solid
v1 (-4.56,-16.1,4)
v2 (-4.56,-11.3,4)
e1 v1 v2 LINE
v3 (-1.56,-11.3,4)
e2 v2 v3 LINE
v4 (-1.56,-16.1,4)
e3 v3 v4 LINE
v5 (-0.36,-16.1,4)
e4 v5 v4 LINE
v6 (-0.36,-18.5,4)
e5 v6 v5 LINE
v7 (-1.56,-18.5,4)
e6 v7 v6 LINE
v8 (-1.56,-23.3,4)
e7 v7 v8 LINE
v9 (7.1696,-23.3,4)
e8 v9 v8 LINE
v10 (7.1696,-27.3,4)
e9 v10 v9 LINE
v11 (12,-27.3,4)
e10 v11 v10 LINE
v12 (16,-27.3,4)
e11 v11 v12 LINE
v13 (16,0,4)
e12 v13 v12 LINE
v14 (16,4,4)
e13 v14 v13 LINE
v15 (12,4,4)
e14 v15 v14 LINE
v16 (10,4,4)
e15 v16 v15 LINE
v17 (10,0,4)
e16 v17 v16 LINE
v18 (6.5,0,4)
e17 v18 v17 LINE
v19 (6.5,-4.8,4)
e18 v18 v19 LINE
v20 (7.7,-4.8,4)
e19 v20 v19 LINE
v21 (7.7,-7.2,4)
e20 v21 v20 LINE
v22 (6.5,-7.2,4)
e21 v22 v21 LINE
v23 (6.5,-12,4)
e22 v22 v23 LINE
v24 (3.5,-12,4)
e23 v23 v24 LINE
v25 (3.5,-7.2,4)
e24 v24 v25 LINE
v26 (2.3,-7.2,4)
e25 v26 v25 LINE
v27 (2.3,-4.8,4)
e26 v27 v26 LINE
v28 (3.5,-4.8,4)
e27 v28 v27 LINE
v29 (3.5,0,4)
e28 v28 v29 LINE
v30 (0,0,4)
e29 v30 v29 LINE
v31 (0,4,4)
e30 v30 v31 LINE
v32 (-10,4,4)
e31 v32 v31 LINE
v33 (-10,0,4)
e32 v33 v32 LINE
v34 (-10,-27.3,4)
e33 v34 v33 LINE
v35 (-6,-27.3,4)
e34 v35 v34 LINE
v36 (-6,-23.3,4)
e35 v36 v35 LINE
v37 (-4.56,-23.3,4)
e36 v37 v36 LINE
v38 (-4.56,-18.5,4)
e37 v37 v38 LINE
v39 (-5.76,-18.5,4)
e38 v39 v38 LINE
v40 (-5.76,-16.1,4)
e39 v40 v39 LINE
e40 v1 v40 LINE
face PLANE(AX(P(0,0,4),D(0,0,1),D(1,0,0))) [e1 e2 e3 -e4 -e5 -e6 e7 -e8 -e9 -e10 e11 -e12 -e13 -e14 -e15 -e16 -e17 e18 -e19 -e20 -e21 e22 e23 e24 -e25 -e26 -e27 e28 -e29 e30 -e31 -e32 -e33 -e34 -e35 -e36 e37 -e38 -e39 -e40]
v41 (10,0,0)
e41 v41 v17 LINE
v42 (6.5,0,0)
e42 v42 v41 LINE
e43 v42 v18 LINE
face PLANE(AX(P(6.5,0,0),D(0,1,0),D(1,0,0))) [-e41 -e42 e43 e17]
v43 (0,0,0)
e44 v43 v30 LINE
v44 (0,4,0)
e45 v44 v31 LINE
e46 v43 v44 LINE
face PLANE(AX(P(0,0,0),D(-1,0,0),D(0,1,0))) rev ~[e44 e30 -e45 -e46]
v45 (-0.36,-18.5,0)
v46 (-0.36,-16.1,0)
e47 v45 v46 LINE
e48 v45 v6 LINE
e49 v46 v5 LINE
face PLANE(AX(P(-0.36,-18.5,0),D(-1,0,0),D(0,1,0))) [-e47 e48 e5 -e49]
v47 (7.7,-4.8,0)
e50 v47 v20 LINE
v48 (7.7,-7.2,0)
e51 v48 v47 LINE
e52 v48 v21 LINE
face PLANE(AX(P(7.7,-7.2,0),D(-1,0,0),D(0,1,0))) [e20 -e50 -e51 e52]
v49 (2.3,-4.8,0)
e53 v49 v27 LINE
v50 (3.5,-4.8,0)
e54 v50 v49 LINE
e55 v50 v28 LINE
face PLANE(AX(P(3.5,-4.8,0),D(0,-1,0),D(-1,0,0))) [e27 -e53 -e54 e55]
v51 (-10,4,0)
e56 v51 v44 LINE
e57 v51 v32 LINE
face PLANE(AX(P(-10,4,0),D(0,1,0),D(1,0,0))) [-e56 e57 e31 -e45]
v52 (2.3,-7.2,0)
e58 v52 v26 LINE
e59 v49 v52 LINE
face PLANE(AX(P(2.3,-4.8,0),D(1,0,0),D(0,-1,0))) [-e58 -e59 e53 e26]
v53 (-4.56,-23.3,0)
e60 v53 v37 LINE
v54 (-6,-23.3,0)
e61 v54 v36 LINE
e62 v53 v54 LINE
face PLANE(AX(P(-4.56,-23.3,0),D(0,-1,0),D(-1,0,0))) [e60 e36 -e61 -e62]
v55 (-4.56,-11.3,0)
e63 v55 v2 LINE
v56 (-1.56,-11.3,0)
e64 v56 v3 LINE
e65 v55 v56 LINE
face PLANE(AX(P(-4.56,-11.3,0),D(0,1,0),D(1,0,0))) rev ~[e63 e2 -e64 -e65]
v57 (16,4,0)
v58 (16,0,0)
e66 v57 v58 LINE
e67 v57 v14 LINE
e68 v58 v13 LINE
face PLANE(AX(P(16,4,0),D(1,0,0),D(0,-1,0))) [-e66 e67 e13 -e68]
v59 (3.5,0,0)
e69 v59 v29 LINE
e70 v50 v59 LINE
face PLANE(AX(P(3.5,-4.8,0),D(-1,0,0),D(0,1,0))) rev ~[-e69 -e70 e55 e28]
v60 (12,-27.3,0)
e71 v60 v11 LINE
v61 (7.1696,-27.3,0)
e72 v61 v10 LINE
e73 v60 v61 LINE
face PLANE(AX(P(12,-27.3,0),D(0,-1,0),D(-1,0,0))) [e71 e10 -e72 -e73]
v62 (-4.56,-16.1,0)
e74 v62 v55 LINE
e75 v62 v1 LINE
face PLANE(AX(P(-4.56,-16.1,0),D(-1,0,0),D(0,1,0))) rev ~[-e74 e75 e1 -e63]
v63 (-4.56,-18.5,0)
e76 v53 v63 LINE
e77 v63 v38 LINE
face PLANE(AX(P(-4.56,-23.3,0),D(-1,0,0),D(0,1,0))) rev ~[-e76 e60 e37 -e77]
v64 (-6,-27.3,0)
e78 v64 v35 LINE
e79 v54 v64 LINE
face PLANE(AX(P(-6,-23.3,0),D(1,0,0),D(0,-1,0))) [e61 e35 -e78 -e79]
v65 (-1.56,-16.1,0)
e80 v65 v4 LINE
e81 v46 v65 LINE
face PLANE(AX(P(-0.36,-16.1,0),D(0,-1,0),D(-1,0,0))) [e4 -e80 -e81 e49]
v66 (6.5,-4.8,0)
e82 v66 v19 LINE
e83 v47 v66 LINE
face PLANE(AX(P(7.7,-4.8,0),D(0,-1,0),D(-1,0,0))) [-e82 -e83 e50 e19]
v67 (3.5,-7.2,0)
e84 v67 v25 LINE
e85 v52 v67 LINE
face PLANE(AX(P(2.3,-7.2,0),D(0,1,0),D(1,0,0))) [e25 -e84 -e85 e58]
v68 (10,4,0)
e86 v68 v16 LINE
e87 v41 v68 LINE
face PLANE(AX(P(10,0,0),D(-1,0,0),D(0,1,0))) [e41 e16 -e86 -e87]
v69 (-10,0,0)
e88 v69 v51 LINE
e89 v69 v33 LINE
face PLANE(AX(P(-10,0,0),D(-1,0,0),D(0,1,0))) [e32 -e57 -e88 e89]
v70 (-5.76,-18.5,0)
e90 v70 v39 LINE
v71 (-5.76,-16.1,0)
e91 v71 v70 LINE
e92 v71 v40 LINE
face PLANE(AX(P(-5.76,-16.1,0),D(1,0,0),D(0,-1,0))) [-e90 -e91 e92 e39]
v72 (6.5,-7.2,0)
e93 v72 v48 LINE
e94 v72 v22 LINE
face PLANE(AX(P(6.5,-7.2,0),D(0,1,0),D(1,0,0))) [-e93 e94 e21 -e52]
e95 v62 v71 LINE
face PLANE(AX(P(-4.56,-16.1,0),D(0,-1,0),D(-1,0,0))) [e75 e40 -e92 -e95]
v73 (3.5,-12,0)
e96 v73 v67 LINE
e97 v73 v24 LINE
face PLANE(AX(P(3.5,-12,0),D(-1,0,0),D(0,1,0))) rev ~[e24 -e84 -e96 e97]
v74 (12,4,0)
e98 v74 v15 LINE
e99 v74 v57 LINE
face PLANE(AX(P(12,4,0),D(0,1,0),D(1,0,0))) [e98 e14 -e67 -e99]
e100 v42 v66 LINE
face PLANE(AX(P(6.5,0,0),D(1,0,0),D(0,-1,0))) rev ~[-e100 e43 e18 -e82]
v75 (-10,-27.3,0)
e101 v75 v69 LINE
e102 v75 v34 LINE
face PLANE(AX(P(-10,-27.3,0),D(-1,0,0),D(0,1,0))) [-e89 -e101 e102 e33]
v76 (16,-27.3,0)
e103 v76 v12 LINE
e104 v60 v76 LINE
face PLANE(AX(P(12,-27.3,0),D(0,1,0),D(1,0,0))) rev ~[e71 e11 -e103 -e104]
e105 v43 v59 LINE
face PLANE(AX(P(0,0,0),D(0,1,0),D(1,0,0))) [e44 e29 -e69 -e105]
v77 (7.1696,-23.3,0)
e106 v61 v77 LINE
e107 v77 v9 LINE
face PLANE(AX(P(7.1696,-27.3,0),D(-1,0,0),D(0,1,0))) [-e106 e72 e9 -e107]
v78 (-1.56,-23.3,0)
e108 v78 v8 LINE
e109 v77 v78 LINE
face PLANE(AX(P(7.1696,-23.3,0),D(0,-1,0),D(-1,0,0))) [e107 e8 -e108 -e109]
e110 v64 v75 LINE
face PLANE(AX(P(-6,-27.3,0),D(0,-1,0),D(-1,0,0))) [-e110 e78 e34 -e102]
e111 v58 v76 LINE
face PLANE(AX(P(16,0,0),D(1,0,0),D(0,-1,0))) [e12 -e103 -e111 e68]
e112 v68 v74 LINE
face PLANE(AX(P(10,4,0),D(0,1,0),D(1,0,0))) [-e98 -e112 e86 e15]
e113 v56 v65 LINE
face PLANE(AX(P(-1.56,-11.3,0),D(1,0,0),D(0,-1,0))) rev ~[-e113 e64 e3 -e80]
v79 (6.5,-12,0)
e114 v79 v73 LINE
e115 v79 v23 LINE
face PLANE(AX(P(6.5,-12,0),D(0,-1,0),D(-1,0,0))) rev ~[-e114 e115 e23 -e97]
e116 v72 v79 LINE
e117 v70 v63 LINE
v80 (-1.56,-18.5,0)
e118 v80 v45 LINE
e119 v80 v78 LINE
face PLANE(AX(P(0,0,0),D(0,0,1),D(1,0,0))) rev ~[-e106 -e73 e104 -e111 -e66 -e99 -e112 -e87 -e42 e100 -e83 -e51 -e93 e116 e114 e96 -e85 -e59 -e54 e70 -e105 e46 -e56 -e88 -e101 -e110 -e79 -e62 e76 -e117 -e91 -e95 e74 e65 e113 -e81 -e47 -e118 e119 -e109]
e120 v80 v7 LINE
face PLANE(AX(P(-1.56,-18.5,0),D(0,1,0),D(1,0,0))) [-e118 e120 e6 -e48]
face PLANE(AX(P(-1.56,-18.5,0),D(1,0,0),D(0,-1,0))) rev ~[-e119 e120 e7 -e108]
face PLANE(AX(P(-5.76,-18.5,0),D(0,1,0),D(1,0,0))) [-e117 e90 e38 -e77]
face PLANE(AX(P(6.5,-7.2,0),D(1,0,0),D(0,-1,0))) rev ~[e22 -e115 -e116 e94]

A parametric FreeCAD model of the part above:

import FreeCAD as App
import Part
import Sketcher

V = App.Vector

doc = App.newDocument("Part")
body = doc.addObject("PartDesign::Body", "Body")

sketch1 = body.newObject("Sketcher::SketchObject", "Sketch")
sketch1.AttachmentSupport = (doc.getObject("XY_Plane"), [""])
sketch1.MapMode = "FlatFace"
sketch1.addGeometry(Part.LineSegment(V(0, 4, 0), V(-10, 4, 0)), False)
sketch1.addGeometry(Part.LineSegment(V(-10, 4, 0), V(-10, -27.3, 0)), False)
sketch1.addGeometry(Part.LineSegment(V(-10, -27.3, 0), V(-6, -27.3, 0)), False)
sketch1.addGeometry(Part.LineSegment(V(-6, -27.3, 0), V(-6, -23.3, 0)), False)
sketch1.addGeometry(Part.LineSegment(V(-6, -23.3, 0), V(-4.6, -23.3, 0)), False)
sketch1.addGeometry(Part.LineSegment(V(-4.6, -23.3, 0), V(-4.6, -18.5, 0)), False)
sketch1.addGeometry(Part.LineSegment(V(-4.6, -18.5, 0), V(-5.8, -18.5, 0)), False)
sketch1.addGeometry(Part.LineSegment(V(-5.8, -18.5, 0), V(-5.8, -16.1, 0)), False)
sketch1.addGeometry(Part.LineSegment(V(-5.8, -16.1, 0), V(-4.6, -16.1, 0)), False)
sketch1.addGeometry(Part.LineSegment(V(-4.6, -16.1, 0), V(-4.6, -11.3, 0)), False)
sketch1.addGeometry(Part.LineSegment(V(-4.6, -11.3, 0), V(-1.6, -11.3, 0)), False)
sketch1.addGeometry(Part.LineSegment(V(-1.6, -11.3, 0), V(-1.6, -16.1, 0)), False)
sketch1.addGeometry(Part.LineSegment(V(-1.6, -16.1, 0), V(-0.4, -16.1, 0)), False)
sketch1.addGeometry(Part.LineSegment(V(-0.4, -16.1, 0), V(-0.4, -18.5, 0)), False)
sketch1.addGeometry(Part.LineSegment(V(-0.4, -18.5, 0), V(-1.6, -18.5, 0)), False)
sketch1.addGeometry(Part.LineSegment(V(-1.6, -18.5, 0), V(-1.6, -23.3, 0)), False)
sketch1.addGeometry(Part.LineSegment(V(-1.6, -23.3, 0), V(7.2, -23.3, 0)), False)
sketch1.addGeometry(Part.LineSegment(V(7.2, -23.3, 0), V(7.2, -27.3, 0)), False)
sketch1.addGeometry(Part.LineSegment(V(7.2, -27.3, 0), V(16, -27.3, 0)), False)
sketch1.addGeometry(Part.LineSegment(V(16, -27.3, 0), V(16, 4, 0)), False)
sketch1.addGeometry(Part.LineSegment(V(16, 4, 0), V(10, 4, 0)), False)
sketch1.addGeometry(Part.LineSegment(V(10, 4, 0), V(10, 0, 0)), False)
sketch1.addGeometry(Part.LineSegment(V(10, 0, 0), V(6.5, 0, 0)), False)
sketch1.addGeometry(Part.LineSegment(V(6.5, 0, 0), V(6.5, -4.8, 0)), False)
sketch1.addGeometry(Part.LineSegment(V(6.5, -4.8, 0), V(7.7, -4.8, 0)), False)
sketch1.addGeometry(Part.LineSegment(V(7.7, -4.8, 0), V(7.7, -7.2, 0)), False)
sketch1.addGeometry(Part.LineSegment(V(7.7, -7.2, 0), V(6.5, -7.2, 0)), False)
sketch1.addGeometry(Part.LineSegment(V(6.5, -7.2, 0), V(6.5, -12, 0)), False)
sketch1.addGeometry(Part.LineSegment(V(6.5, -12, 0), V(3.5, -12, 0)), False)
sketch1.addGeometry(Part.LineSegment(V(3.5, -12, 0), V(3.5, -7.2, 0)), False)
sketch1.addGeometry(Part.LineSegment(V(3.5, -7.2, 0), V(2.3, -7.2, 0)), False)
sketch1.addGeometry(Part.LineSegment(V(2.3, -7.2, 0), V(2.3, -4.8, 0)), False)
sketch1.addGeometry(Part.LineSegment(V(2.3, -4.8, 0), V(3.5, -4.8, 0)), False)
sketch1.addGeometry(Part.LineSegment(V(3.5, -4.8, 0), V(3.5, 0, 0)), False)
sketch1.addGeometry(Part.LineSegment(V(3.5, 0, 0), V(0, 0, 0)), False)
sketch1.addGeometry(Part.LineSegment(V(0, 0, 0), V(0, 4, 0)), False)
sketch1.addConstraint(Sketcher.Constraint("Coincident", 0, 2, 1, 1))
sketch1.addConstraint(Sketcher.Constraint("Coincident", 1, 2, 2, 1))
sketch1.addConstraint(Sketcher.Constraint("Coincident", 2, 2, 3, 1))
sketch1.addConstraint(Sketcher.Constraint("Coincident", 3, 2, 4, 1))
sketch1.addConstraint(Sketcher.Constraint("Coincident", 4, 2, 5, 1))
sketch1.addConstraint(Sketcher.Constraint("Coincident", 5, 2, 6, 1))
sketch1.addConstraint(Sketcher.Constraint("Coincident", 6, 2, 7, 1))
sketch1.addConstraint(Sketcher.Constraint("Coincident", 7, 2, 8, 1))
sketch1.addConstraint(Sketcher.Constraint("Coincident", 8, 2, 9, 1))
sketch1.addConstraint(Sketcher.Constraint("Coincident", 9, 2, 10, 1))
sketch1.addConstraint(Sketcher.Constraint("Coincident", 10, 2, 11, 1))
sketch1.addConstraint(Sketcher.Constraint("Coincident", 11, 2, 12, 1))
sketch1.addConstraint(Sketcher.Constraint("Coincident", 12, 2, 13, 1))
sketch1.addConstraint(Sketcher.Constraint("Coincident", 13, 2, 14, 1))
sketch1.addConstraint(Sketcher.Constraint("Coincident", 14, 2, 15, 1))
sketch1.addConstraint(Sketcher.Constraint("Coincident", 15, 2, 16, 1))
sketch1.addConstraint(Sketcher.Constraint("Coincident", 16, 2, 17, 1))
sketch1.addConstraint(Sketcher.Constraint("Coincident", 17, 2, 18, 1))
sketch1.addConstraint(Sketcher.Constraint("Coincident", 18, 2, 19, 1))
sketch1.addConstraint(Sketcher.Constraint("Coincident", 19, 2, 20, 1))
sketch1.addConstraint(Sketcher.Constraint("Coincident", 20, 2, 21, 1))
sketch1.addConstraint(Sketcher.Constraint("Coincident", 21, 2, 22, 1))
sketch1.addConstraint(Sketcher.Constraint("Coincident", 22, 2, 23, 1))
sketch1.addConstraint(Sketcher.Constraint("Coincident", 23, 2, 24, 1))
sketch1.addConstraint(Sketcher.Constraint("Coincident", 24, 2, 25, 1))
sketch1.addConstraint(Sketcher.Constraint("Coincident", 25, 2, 26, 1))
sketch1.addConstraint(Sketcher.Constraint("Coincident", 26, 2, 27, 1))
sketch1.addConstraint(Sketcher.Constraint("Coincident", 27, 2, 28, 1))
sketch1.addConstraint(Sketcher.Constraint("Coincident", 28, 2, 29, 1))
sketch1.addConstraint(Sketcher.Constraint("Coincident", 29, 2, 30, 1))
sketch1.addConstraint(Sketcher.Constraint("Coincident", 30, 2, 31, 1))
sketch1.addConstraint(Sketcher.Constraint("Coincident", 31, 2, 32, 1))
sketch1.addConstraint(Sketcher.Constraint("Coincident", 32, 2, 33, 1))
sketch1.addConstraint(Sketcher.Constraint("Coincident", 33, 2, 34, 1))
sketch1.addConstraint(Sketcher.Constraint("Coincident", 34, 2, 35, 1))
sketch1.addConstraint(Sketcher.Constraint("Coincident", 35, 2, 0, 1))
sketch1.addConstraint(Sketcher.Constraint("Horizontal", 0))
sketch1.addConstraint(Sketcher.Constraint("Vertical", 1))
sketch1.addConstraint(Sketcher.Constraint("Horizontal", 2))
sketch1.addConstraint(Sketcher.Constraint("Vertical", 3))
sketch1.addConstraint(Sketcher.Constraint("Horizontal", 4))
sketch1.addConstraint(Sketcher.Constraint("Vertical", 5))
sketch1.addConstraint(Sketcher.Constraint("Horizontal", 6))
sketch1.addConstraint(Sketcher.Constraint("Vertical", 7))
sketch1.addConstraint(Sketcher.Constraint("Horizontal", 8))
sketch1.addConstraint(Sketcher.Constraint("Vertical", 9))
sketch1.addConstraint(Sketcher.Constraint("Horizontal", 10))
sketch1.addConstraint(Sketcher.Constraint("Vertical", 11))
sketch1.addConstraint(Sketcher.Constraint("Horizontal", 12))
sketch1.addConstraint(Sketcher.Constraint("Vertical", 13))
sketch1.addConstraint(Sketcher.Constraint("Horizontal", 14))
sketch1.addConstraint(Sketcher.Constraint("Vertical", 15))
sketch1.addConstraint(Sketcher.Constraint("Horizontal", 16))
sketch1.addConstraint(Sketcher.Constraint("Vertical", 17))
sketch1.addConstraint(Sketcher.Constraint("Horizontal", 18))
sketch1.addConstraint(Sketcher.Constraint("Vertical", 19))
sketch1.addConstraint(Sketcher.Constraint("Horizontal", 20))
sketch1.addConstraint(Sketcher.Constraint("Vertical", 21))
sketch1.addConstraint(Sketcher.Constraint("Horizontal", 22))
sketch1.addConstraint(Sketcher.Constraint("Vertical", 23))
sketch1.addConstraint(Sketcher.Constraint("Horizontal", 24))
sketch1.addConstraint(Sketcher.Constraint("Vertical", 25))
sketch1.addConstraint(Sketcher.Constraint("Horizontal", 26))
sketch1.addConstraint(Sketcher.Constraint("Vertical", 27))
sketch1.addConstraint(Sketcher.Constraint("Horizontal", 28))
sketch1.addConstraint(Sketcher.Constraint("Vertical", 29))
sketch1.addConstraint(Sketcher.Constraint("Horizontal", 30))
sketch1.addConstraint(Sketcher.Constraint("Vertical", 31))
sketch1.addConstraint(Sketcher.Constraint("Horizontal", 32))
sketch1.addConstraint(Sketcher.Constraint("Vertical", 33))
sketch1.addConstraint(Sketcher.Constraint("Horizontal", 34))
sketch1.addConstraint(Sketcher.Constraint("Vertical", 35))
sketch1.addConstraint(Sketcher.Constraint("Coincident", 34, 2, -1, 1))
sketch1.addConstraint(Sketcher.Constraint("Symmetric", 0, 2, 20, 2, -2))
sketch1.addConstraint(Sketcher.Constraint("PointOnObject", 21, 2, -1))
sketch1.addConstraint(Sketcher.Constraint("Horizontal", 8, 2, 11, 2))
sketch1.addConstraint(Sketcher.Constraint("Horizontal", 6, 2, 13, 2))
sketch1.addConstraint(Sketcher.Constraint("Horizontal", 4, 2, 15, 2))
sketch1.addConstraint(Sketcher.Constraint("Horizontal", 2, 2, 17, 2))
sketch1.addConstraint(Sketcher.Constraint("Horizontal", 26, 2, 29, 2))
sketch1.addConstraint(Sketcher.Constraint("Horizontal", 24, 2, 31, 2))
sketch1.addConstraint(Sketcher.Constraint("Vertical", 5, 2, 8, 2))
sketch1.addConstraint(Sketcher.Constraint("Vertical", 11, 2, 14, 2))
sketch1.addConstraint(Sketcher.Constraint("Vertical", 23, 2, 26, 2))
sketch1.addConstraint(Sketcher.Constraint("Vertical", 29, 2, 32, 2))
sketch1.addConstraint(Sketcher.Constraint("Equal", 8, 12))
sketch1.addConstraint(Sketcher.Constraint("Equal", 14, 24))
sketch1.addConstraint(Sketcher.Constraint("Equal", 10, 28))
sketch1.addConstraint(Sketcher.Constraint("Equal", 26, 30))
sketch1.addConstraint(Sketcher.Constraint("Equal", 22, 34))
sketch1.addConstraint(Sketcher.Constraint("Equal", 2, 3))
sketch1.addConstraint(Sketcher.Constraint("Equal", 5, 9))
sketch1.addConstraint(Sketcher.Constraint("Equal", 17, 21))
sketch1.addConstraint(Sketcher.Constraint("Equal", 15, 23))
sketch1.addConstraint(Sketcher.Constraint("Equal", 13, 25))
sketch1.addConstraint(Sketcher.Constraint("Equal", 23, 27))
sketch1.addConstraint(Sketcher.Constraint("DistanceX", 2, 1, 2, 2, 4.0))
sketch1.addConstraint(Sketcher.Constraint("DistanceX", 10, 1, 10, 2, 3.0))
sketch1.addConstraint(Sketcher.Constraint("DistanceY", 7, 1, 7, 2, 2.4))
sketch1.addConstraint(Sketcher.Constraint("DistanceY", 27, 2, -1, 1, 12.0))
sketch1.addConstraint(Sketcher.Constraint("DistanceX", 4, 1, 4, 2, 1.44))
sketch1.addConstraint(Sketcher.Constraint("DistanceX", 7, 2, 12, 2, 5.4))
sketch1.addConstraint(Sketcher.Constraint("DistanceX", 0, 2, 0, 1, 10.0))
sketch1.addConstraint(Sketcher.Constraint("DistanceX", 20, 2, 20, 1, 6.0))
sketch1.addConstraint(Sketcher.Constraint("DistanceY", 1, 2, 1, 1, 31.3))
sketch1.addConstraint(Sketcher.Constraint("DistanceX", 16, 1, 16, 2, 8.7296))
pad1 = body.newObject("PartDesign::Pad", "Pad")
pad1.Profile = sketch1
pad1.Length = 4

doc.recompute()
